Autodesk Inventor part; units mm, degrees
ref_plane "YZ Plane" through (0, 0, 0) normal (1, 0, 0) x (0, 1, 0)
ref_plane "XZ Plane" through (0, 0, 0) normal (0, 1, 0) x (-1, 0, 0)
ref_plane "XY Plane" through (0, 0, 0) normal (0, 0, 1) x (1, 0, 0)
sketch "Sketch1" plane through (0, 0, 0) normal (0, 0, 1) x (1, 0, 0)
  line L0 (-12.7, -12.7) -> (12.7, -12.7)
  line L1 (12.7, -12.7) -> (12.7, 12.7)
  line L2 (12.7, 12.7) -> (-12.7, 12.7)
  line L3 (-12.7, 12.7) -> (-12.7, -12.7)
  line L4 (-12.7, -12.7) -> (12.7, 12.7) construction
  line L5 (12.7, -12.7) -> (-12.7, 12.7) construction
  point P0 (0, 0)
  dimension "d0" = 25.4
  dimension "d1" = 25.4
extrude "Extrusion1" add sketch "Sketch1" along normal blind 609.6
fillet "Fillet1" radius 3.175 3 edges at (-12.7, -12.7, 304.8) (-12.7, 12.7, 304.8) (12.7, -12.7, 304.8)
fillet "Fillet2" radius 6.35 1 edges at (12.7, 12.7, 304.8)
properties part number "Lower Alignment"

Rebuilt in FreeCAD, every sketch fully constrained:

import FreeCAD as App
import Part
import Sketcher
from FreeCAD import Vector
Q = App.Units.Quantity


def edges_at(feature, points):
    """Names of the edges that pass closest to the given points."""
    edges = feature.Shape.Edges
    near = lambda p: min(range(len(edges)), key=lambda i: edges[i].distToShape(Part.Vertex(*p))[0])
    return sorted({f"Edge{near(p) + 1}" for p in points})

doc = App.newDocument("Part")
body = doc.addObject("PartDesign::Body", "Body")

# Sketch on XY plane
sketch1 = doc.addObject("Sketcher::SketchObject", "Sketch")
body.addObject(sketch1)
sketch1.AttachmentSupport = (doc.XY_Plane, [""])
sketch1.MapMode = "FlatFace"
sketch1.addGeometry([
    Part.LineSegment(Vector(-13, 13, 0), Vector(-13, -13, 0)),
    Part.LineSegment(Vector(-13, -13, 0), Vector(13, -13, 0)),
    Part.LineSegment(Vector(13, -13, 0), Vector(13, 13, 0)),
    Part.LineSegment(Vector(13, 13, 0), Vector(-13, 13, 0)),
], False)
sketch1.addConstraint([
    Sketcher.Constraint("Coincident", 0, 2, 1, 1),
    Sketcher.Constraint("Coincident", 1, 2, 2, 1),
    Sketcher.Constraint("Coincident", 2, 2, 3, 1),
    Sketcher.Constraint("Coincident", 3, 2, 0, 1),
    Sketcher.Constraint("Vertical", 0),
    Sketcher.Constraint("Horizontal", 1),
    Sketcher.Constraint("Vertical", 2),
    Sketcher.Constraint("Horizontal", 3),
    Sketcher.Constraint("Symmetric", 0, 2, 2, 2, -1, 1),
    Sketcher.Constraint("Equal", 3, 0),
    Sketcher.Constraint("DistanceX", 1, 1, 1, 2, Q("1 in")),
])
pad1 = doc.addObject("PartDesign::Pad", "Pad")
body.addObject(pad1)
pad1.Profile = sketch1
pad1.Length = Q("24 in")
doc.recompute()

fillet = doc.addObject("PartDesign::Fillet", "Fillet")
body.addObject(fillet)
fillet.Base = (pad1, edges_at(pad1, [(-12.7, -12.7, 304.8), (-12.7, 12.7, 304.8), (12.7, -12.7, 304.8)]))
fillet.Radius = Q("0.125 in")
doc.recompute()

fillet2 = doc.addObject("PartDesign::Fillet", "Fillet001")
body.addObject(fillet2)
fillet2.Base = (fillet, edges_at(fillet, [(12.7, 12.7, 304.8)]))
fillet2.Radius = Q("0.25 in")

doc.recompute()
